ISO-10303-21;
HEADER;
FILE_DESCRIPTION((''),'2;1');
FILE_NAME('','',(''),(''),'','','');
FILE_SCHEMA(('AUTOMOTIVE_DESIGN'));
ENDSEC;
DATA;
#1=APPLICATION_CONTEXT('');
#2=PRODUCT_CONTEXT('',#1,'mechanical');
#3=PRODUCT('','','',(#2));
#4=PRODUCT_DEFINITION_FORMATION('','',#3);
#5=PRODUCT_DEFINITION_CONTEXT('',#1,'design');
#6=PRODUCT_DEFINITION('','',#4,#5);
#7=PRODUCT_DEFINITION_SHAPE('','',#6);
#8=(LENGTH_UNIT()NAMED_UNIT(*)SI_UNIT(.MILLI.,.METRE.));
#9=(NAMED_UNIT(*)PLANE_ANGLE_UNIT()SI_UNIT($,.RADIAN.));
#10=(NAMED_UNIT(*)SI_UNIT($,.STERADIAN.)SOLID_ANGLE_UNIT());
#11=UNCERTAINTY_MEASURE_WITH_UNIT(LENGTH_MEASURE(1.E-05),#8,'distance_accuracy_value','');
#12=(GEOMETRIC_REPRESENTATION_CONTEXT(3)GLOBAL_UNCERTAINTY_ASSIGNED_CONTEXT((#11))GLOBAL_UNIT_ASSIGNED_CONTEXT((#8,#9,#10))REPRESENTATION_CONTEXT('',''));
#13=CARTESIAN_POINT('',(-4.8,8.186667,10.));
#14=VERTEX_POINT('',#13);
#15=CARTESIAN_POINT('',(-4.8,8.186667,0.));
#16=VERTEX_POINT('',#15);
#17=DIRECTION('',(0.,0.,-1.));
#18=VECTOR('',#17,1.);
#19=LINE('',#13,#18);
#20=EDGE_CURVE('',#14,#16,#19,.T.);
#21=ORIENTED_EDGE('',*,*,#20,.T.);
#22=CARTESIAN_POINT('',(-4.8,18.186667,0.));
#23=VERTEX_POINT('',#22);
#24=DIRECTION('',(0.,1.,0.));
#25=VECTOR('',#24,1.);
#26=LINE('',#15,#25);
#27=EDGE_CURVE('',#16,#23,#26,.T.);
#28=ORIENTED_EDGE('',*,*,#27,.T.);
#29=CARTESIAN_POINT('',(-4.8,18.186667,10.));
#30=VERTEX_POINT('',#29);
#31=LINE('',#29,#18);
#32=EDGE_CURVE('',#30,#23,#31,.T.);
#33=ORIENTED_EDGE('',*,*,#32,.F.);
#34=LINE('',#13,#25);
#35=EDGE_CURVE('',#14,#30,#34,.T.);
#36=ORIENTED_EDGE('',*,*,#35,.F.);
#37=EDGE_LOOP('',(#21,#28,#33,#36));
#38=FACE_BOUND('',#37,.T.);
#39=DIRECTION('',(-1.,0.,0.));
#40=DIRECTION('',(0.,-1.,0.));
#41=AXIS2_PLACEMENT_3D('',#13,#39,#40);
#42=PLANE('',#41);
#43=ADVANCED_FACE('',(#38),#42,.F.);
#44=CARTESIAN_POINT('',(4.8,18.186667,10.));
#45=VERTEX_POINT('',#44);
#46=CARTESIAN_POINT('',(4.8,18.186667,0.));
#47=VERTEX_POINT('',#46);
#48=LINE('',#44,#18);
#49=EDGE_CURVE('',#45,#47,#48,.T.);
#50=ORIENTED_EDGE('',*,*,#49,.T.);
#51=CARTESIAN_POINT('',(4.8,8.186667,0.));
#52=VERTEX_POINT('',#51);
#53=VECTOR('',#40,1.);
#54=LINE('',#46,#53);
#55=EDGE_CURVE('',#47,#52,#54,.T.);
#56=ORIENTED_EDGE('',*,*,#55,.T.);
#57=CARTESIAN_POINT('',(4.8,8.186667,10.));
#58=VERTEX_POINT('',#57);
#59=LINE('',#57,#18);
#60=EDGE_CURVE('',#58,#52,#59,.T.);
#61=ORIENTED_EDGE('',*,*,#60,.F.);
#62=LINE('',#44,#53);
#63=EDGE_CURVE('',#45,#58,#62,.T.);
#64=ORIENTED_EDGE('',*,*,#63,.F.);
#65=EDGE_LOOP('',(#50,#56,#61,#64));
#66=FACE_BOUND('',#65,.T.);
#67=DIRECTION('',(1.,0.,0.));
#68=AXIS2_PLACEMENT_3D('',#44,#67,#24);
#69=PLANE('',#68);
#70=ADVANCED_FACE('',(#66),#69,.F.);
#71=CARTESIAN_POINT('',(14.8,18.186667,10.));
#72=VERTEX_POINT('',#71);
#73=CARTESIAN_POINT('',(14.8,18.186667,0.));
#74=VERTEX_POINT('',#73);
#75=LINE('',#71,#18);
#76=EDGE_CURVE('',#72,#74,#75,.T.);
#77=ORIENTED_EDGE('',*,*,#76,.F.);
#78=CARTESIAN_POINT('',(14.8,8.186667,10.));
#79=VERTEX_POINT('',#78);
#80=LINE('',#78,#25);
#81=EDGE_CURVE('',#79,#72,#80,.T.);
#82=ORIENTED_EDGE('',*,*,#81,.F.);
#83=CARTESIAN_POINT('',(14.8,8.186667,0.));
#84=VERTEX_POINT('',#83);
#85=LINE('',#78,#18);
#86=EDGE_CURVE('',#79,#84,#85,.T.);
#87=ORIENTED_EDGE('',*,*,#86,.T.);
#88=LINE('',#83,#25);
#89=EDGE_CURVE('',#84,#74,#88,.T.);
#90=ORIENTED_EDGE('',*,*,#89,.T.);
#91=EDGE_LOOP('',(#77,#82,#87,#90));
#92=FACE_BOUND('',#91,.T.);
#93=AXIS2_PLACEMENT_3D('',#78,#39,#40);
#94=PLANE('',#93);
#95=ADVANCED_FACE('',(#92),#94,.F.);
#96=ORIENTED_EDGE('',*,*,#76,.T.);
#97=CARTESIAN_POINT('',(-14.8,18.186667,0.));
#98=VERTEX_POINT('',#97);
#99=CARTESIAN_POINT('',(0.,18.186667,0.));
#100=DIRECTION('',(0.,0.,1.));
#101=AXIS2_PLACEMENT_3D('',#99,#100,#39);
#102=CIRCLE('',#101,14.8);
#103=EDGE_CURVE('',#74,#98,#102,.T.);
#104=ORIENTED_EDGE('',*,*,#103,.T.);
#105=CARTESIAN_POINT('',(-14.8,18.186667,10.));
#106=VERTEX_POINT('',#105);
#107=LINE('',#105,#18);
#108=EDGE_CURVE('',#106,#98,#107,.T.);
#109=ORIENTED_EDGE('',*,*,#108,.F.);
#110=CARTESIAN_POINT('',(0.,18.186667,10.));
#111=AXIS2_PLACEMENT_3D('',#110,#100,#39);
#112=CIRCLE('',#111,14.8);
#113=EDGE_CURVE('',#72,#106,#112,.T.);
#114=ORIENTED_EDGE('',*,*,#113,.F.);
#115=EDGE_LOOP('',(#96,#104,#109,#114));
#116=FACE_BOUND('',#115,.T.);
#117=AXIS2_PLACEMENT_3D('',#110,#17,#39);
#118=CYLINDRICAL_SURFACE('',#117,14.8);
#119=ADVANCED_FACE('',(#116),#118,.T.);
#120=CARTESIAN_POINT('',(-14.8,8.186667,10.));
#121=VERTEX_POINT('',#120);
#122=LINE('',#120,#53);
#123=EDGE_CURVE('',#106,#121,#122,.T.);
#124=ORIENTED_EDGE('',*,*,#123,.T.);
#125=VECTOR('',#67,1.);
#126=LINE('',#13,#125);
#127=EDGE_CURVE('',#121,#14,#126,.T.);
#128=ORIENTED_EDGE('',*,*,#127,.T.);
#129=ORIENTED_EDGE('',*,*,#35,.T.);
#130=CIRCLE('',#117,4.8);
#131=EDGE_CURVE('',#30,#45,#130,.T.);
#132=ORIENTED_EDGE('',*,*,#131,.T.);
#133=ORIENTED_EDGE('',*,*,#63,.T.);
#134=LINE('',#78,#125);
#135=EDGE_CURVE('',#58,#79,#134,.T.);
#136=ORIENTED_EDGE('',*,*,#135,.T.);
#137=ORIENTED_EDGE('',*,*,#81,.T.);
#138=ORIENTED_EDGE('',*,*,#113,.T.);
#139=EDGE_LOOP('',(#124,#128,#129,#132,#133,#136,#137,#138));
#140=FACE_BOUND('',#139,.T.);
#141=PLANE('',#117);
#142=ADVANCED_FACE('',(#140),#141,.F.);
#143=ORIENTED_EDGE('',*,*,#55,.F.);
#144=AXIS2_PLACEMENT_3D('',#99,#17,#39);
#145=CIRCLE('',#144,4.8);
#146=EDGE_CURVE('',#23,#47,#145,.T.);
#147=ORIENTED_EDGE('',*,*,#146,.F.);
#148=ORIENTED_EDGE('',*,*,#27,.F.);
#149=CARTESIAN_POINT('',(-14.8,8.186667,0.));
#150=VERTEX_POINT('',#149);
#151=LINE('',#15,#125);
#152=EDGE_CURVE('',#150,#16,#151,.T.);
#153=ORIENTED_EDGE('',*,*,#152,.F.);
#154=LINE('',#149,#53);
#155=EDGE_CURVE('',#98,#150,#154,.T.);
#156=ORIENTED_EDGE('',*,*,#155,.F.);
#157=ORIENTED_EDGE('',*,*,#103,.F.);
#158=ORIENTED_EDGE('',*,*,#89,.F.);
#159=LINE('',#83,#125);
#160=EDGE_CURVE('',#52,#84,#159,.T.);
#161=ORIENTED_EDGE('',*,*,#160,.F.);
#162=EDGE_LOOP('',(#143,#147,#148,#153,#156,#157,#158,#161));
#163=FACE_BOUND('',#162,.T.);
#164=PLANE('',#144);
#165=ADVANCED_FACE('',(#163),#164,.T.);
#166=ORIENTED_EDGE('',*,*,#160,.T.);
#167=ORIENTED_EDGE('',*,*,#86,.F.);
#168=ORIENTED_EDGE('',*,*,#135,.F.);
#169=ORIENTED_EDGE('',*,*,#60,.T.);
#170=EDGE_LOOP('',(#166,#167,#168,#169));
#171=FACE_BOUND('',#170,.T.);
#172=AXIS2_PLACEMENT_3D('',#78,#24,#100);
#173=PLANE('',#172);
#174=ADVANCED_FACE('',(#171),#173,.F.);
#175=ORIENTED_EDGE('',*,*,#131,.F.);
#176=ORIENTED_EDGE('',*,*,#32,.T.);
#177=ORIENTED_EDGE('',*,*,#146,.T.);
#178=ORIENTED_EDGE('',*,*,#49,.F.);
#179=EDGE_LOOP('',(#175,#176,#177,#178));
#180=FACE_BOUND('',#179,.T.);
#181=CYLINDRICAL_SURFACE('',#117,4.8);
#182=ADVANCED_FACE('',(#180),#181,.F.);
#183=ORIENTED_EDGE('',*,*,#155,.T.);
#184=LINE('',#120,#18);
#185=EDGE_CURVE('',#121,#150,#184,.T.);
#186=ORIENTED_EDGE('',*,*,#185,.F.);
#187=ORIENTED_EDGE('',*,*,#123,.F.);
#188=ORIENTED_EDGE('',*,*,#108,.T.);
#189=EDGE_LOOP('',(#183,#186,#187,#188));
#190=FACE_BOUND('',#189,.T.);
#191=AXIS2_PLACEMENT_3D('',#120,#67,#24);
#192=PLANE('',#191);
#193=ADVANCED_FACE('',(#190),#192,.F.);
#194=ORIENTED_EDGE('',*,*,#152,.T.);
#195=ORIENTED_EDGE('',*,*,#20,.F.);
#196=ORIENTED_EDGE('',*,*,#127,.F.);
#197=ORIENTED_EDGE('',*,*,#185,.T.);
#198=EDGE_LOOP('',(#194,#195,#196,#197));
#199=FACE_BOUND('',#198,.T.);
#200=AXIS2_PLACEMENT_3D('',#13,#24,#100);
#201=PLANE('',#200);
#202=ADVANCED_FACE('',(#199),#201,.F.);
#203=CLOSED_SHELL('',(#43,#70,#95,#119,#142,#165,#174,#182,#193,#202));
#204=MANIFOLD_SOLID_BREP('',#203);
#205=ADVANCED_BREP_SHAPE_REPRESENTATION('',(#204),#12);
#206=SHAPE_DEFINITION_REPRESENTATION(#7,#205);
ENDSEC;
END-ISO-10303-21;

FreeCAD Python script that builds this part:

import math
import FreeCAD as App
import Part
import Sketcher

doc = App.newDocument("Part")
body = doc.addObject("PartDesign::Body", "Body")

sketch1 = body.newObject("Sketcher::SketchObject", "Sketch")
sketch1.AttachmentSupport = (doc.getObject("XY_Plane"), [""])
sketch1.MapMode = "FlatFace"
sketch1.addGeometry(Part.LineSegment(App.Vector(-4.8, 8.2, 0), App.Vector(-4.8, 18.2, 0)), False)
sketch1.addGeometry(Part.ArcOfCircle(Part.Circle(App.Vector(0, 18.2, 0), App.Vector(0, 0, 1), 4.8), math.radians(0), math.radians(180)), False)
sketch1.addGeometry(Part.LineSegment(App.Vector(4.8, 18.2, 0), App.Vector(4.8, 8.2, 0)), False)
sketch1.addGeometry(Part.LineSegment(App.Vector(4.8, 8.2, 0), App.Vector(14.8, 8.2, 0)), False)
sketch1.addGeometry(Part.LineSegment(App.Vector(14.8, 8.2, 0), App.Vector(14.8, 18.2, 0)), False)
sketch1.addGeometry(Part.ArcOfCircle(Part.Circle(App.Vector(0, 18.2, 0), App.Vector(0, 0, 1), 14.8), math.radians(0), math.radians(180)), False)
sketch1.addGeometry(Part.LineSegment(App.Vector(-14.8, 18.2, 0), App.Vector(-14.8, 8.2, 0)), False)
sketch1.addGeometry(Part.LineSegment(App.Vector(-14.8, 8.2, 0), App.Vector(-4.8, 8.2, 0)), False)
sketch1.addConstraint(Sketcher.Constraint("Tangent", 0, 2, 1, 2))
sketch1.addConstraint(Sketcher.Constraint("Tangent", 1, 1, 2, 1))
sketch1.addConstraint(Sketcher.Constraint("Coincident", 2, 2, 3, 1))
sketch1.addConstraint(Sketcher.Constraint("Coincident", 3, 2, 4, 1))
sketch1.addConstraint(Sketcher.Constraint("Tangent", 4, 2, 5, 1))
sketch1.addConstraint(Sketcher.Constraint("Tangent", 5, 2, 6, 1))
sketch1.addConstraint(Sketcher.Constraint("Coincident", 6, 2, 7, 1))
sketch1.addConstraint(Sketcher.Constraint("Coincident", 7, 2, 0, 1))
sketch1.addConstraint(Sketcher.Constraint("Vertical", 0))
sketch1.addConstraint(Sketcher.Constraint("Vertical", 2))
sketch1.addConstraint(Sketcher.Constraint("Horizontal", 3))
sketch1.addConstraint(Sketcher.Constraint("Vertical", 4))
sketch1.addConstraint(Sketcher.Constraint("Vertical", 6))
sketch1.addConstraint(Sketcher.Constraint("Horizontal", 7))
sketch1.addConstraint(Sketcher.Constraint("Coincident", 5, 3, 1, 3))
sketch1.addConstraint(Sketcher.Constraint("Symmetric", 3, 2, 6, 2, -2))
sketch1.addConstraint(Sketcher.Constraint("Equal", 7, 0))
sketch1.addConstraint(Sketcher.Constraint("Radius", 1, 4.8))
sketch1.addConstraint(Sketcher.Constraint("Radius", 5, 14.8))
sketch1.addConstraint(Sketcher.Constraint("DistanceY", -1, 1, 1, 3, 18.186667))
pad1 = body.newObject("PartDesign::Pad", "Pad")
pad1.Profile = sketch1
pad1.Length = 10

doc.recompute()
